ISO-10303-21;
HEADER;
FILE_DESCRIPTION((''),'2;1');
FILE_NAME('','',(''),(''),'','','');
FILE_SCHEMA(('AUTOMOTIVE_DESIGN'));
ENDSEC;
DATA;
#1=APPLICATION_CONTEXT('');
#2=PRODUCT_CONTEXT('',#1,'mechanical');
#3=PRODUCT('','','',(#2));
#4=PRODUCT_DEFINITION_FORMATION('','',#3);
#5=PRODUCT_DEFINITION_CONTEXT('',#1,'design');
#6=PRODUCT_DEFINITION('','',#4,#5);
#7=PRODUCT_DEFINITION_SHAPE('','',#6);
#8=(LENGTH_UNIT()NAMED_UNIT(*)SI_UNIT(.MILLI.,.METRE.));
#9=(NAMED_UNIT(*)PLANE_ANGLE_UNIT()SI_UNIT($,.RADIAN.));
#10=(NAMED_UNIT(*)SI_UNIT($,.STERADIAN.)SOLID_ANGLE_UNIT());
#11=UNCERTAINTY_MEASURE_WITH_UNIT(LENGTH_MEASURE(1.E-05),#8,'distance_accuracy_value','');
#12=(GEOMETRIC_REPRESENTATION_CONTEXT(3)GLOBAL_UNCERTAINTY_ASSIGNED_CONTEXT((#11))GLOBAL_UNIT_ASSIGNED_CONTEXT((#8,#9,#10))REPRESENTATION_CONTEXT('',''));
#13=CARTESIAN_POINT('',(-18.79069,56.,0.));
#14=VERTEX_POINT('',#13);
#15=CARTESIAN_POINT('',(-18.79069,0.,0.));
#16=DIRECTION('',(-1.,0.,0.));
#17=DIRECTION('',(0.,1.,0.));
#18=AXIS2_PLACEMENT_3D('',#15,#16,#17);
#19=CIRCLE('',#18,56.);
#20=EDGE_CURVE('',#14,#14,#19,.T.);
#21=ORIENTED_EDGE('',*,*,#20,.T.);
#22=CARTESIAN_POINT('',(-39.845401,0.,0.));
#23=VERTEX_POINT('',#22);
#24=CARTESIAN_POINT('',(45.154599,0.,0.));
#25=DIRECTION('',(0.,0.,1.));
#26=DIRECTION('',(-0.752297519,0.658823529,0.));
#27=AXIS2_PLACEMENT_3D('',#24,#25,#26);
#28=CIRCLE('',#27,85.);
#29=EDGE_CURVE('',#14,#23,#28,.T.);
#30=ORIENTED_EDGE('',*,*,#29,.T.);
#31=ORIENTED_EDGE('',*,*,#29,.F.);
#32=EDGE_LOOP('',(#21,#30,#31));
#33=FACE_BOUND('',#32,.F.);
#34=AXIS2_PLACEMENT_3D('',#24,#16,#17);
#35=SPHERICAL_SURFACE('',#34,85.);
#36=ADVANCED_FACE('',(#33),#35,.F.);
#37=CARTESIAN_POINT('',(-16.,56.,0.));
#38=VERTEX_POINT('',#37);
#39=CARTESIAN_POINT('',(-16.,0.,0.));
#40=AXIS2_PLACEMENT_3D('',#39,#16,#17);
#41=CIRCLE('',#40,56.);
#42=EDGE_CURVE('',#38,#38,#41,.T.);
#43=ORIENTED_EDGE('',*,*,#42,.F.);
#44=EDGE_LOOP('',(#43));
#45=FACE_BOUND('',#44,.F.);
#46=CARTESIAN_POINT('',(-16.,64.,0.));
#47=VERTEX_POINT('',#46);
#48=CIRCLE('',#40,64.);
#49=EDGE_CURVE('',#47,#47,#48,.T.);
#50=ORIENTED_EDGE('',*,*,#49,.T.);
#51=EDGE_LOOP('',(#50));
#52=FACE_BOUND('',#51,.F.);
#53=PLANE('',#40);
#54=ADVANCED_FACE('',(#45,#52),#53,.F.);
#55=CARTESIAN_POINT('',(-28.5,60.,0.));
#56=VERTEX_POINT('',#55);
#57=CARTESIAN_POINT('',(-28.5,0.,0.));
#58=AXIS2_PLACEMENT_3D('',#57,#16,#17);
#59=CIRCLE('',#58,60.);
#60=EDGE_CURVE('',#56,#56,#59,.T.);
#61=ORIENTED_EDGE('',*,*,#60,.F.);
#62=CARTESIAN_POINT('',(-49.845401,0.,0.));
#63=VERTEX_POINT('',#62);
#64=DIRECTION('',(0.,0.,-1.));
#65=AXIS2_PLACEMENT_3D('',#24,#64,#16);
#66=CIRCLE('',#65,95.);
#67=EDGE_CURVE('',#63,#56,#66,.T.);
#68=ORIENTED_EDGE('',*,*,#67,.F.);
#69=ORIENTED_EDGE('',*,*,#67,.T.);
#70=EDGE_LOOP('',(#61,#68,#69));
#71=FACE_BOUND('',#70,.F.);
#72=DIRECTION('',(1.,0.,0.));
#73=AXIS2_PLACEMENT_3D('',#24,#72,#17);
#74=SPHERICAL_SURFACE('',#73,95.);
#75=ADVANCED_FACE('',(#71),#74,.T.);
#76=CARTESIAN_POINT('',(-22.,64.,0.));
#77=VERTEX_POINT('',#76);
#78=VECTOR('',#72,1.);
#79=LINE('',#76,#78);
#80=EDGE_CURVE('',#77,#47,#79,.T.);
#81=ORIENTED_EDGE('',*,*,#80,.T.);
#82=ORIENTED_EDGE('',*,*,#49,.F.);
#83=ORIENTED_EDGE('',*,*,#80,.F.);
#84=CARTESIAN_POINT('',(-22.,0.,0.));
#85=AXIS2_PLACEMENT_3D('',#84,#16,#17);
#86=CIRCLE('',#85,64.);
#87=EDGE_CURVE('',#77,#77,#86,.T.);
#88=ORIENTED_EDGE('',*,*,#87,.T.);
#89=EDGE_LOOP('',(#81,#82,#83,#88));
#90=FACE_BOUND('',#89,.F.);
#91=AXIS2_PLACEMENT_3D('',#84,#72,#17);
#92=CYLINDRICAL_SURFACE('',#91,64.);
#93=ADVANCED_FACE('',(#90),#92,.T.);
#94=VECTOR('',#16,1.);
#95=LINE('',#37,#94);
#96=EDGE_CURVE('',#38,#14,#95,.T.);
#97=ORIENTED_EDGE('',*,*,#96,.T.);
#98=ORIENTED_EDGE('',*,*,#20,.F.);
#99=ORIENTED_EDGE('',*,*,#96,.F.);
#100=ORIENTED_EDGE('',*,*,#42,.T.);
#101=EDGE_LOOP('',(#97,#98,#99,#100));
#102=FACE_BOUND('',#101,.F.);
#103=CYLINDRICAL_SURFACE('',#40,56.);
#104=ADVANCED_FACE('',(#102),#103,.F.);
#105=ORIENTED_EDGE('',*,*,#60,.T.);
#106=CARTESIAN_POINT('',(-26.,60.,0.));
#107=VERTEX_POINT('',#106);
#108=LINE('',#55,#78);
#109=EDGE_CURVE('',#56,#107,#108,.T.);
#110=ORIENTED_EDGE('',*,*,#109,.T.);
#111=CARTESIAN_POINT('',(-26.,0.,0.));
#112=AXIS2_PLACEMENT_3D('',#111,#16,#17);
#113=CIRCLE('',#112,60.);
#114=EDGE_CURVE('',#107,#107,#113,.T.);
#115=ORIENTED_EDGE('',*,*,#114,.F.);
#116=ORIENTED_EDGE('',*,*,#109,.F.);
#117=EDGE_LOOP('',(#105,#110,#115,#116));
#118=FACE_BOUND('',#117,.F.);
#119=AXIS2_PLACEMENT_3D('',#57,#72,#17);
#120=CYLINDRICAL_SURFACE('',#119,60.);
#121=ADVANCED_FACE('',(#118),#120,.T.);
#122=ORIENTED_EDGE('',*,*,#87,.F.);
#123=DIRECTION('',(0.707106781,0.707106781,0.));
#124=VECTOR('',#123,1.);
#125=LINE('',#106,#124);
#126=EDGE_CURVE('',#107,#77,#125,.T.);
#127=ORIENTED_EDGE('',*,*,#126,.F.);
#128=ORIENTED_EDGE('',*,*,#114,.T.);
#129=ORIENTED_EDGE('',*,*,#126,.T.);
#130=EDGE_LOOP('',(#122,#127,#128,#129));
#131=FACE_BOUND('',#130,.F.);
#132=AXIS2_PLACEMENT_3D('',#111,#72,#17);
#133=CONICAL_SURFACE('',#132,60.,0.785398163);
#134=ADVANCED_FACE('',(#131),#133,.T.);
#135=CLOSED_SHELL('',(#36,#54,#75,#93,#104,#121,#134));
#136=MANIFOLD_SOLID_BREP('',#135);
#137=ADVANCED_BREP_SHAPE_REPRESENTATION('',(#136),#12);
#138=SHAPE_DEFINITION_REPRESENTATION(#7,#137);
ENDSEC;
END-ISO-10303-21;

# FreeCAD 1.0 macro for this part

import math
import FreeCAD as App
import Part
import Sketcher
from FreeCAD import Vector
Q = App.Units.Quantity

doc = App.newDocument("Part")
body = doc.addObject("PartDesign::Body", "Body")

# Sketch on XY plane
sketch1 = body.newObject("Sketcher::SketchObject", "Sketch")
sketch1.AttachmentSupport = (doc.getObject("XY_Plane"), [""])
sketch1.MapMode = "FlatFace"
sketch1.addGeometry([
    Part.LineSegment(Vector(-16, 56, 0), Vector(-16, 64, 0)),  # 0
    Part.LineSegment(Vector(-16, 64, 0), Vector(-22, 64, 0)),  # 1
    Part.LineSegment(Vector(-22, 64, 0), Vector(-26, 60, 0)),  # 2
    Part.LineSegment(Vector(-26, 60, 0), Vector(-28.5, 60, 0)),  # 3
    Part.ArcOfCircle(Part.Circle(Vector(45.2, 0, 0), Vector(0, 0, 1), 95), math.radians(141), math.radians(180)),  # 4
    Part.LineSegment(Vector(-49.8, 0, 0), Vector(-39.8, 0, 0)),  # 5
    Part.ArcOfCircle(Part.Circle(Vector(45.2, 0, 0), Vector(0, 0, 1), 85), math.radians(139), math.radians(180)),  # 6
    Part.LineSegment(Vector(-18.8, 56, 0), Vector(-16, 56, 0)),  # 7
], False)
sketch1.addConstraint([
    Sketcher.Constraint("Coincident", 0, 2, 1, 1),
    Sketcher.Constraint("Coincident", 1, 2, 2, 1),
    Sketcher.Constraint("Coincident", 2, 2, 3, 1),
    Sketcher.Constraint("Coincident", 3, 2, 4, 1),
    Sketcher.Constraint("Coincident", 4, 2, 5, 1),
    Sketcher.Constraint("Coincident", 5, 2, 6, 2),
    Sketcher.Constraint("Coincident", 6, 1, 7, 1),
    Sketcher.Constraint("Coincident", 7, 2, 0, 1),
    Sketcher.Constraint("Vertical", 0),
    Sketcher.Constraint("Horizontal", 1),
    Sketcher.Constraint("Horizontal", 3),
    Sketcher.Constraint("Horizontal", 5),
    Sketcher.Constraint("Horizontal", 7),
    Sketcher.Constraint("Coincident", 6, 3, 4, 3),
    Sketcher.Constraint("PointOnObject", 4, 3, -1),
    Sketcher.Constraint("PointOnObject", 4, 2, -1),
    Sketcher.Constraint("Radius", 4, 95.0),
    Sketcher.Constraint("Radius", 6, 85.0),
    Sketcher.Constraint("DistanceX", 1, 2, 1, 1, 6.0),
    Sketcher.Constraint("DistanceY", 0, 1, 0, 2, 8.0),
    Sketcher.Constraint("Angle", 2, Q("-135 deg")),
    Sketcher.Constraint("DistanceX", 3, 2, 3, 1, 2.5),
    Sketcher.Constraint("DistanceX", 0, 2, -1, 1, 16.0),
    Sketcher.Constraint("DistanceY", -1, 1, 0, 2, 64.0),
    Sketcher.Constraint("DistanceX", 2, 2, -1, 1, 26.0),
])
revolution = body.newObject("PartDesign::Revolution", "Revolution")
revolution.Profile = sketch1
revolution.ReferenceAxis = (sketch1, ["H_Axis"])
revolution.Angle = 360

doc.recompute()
